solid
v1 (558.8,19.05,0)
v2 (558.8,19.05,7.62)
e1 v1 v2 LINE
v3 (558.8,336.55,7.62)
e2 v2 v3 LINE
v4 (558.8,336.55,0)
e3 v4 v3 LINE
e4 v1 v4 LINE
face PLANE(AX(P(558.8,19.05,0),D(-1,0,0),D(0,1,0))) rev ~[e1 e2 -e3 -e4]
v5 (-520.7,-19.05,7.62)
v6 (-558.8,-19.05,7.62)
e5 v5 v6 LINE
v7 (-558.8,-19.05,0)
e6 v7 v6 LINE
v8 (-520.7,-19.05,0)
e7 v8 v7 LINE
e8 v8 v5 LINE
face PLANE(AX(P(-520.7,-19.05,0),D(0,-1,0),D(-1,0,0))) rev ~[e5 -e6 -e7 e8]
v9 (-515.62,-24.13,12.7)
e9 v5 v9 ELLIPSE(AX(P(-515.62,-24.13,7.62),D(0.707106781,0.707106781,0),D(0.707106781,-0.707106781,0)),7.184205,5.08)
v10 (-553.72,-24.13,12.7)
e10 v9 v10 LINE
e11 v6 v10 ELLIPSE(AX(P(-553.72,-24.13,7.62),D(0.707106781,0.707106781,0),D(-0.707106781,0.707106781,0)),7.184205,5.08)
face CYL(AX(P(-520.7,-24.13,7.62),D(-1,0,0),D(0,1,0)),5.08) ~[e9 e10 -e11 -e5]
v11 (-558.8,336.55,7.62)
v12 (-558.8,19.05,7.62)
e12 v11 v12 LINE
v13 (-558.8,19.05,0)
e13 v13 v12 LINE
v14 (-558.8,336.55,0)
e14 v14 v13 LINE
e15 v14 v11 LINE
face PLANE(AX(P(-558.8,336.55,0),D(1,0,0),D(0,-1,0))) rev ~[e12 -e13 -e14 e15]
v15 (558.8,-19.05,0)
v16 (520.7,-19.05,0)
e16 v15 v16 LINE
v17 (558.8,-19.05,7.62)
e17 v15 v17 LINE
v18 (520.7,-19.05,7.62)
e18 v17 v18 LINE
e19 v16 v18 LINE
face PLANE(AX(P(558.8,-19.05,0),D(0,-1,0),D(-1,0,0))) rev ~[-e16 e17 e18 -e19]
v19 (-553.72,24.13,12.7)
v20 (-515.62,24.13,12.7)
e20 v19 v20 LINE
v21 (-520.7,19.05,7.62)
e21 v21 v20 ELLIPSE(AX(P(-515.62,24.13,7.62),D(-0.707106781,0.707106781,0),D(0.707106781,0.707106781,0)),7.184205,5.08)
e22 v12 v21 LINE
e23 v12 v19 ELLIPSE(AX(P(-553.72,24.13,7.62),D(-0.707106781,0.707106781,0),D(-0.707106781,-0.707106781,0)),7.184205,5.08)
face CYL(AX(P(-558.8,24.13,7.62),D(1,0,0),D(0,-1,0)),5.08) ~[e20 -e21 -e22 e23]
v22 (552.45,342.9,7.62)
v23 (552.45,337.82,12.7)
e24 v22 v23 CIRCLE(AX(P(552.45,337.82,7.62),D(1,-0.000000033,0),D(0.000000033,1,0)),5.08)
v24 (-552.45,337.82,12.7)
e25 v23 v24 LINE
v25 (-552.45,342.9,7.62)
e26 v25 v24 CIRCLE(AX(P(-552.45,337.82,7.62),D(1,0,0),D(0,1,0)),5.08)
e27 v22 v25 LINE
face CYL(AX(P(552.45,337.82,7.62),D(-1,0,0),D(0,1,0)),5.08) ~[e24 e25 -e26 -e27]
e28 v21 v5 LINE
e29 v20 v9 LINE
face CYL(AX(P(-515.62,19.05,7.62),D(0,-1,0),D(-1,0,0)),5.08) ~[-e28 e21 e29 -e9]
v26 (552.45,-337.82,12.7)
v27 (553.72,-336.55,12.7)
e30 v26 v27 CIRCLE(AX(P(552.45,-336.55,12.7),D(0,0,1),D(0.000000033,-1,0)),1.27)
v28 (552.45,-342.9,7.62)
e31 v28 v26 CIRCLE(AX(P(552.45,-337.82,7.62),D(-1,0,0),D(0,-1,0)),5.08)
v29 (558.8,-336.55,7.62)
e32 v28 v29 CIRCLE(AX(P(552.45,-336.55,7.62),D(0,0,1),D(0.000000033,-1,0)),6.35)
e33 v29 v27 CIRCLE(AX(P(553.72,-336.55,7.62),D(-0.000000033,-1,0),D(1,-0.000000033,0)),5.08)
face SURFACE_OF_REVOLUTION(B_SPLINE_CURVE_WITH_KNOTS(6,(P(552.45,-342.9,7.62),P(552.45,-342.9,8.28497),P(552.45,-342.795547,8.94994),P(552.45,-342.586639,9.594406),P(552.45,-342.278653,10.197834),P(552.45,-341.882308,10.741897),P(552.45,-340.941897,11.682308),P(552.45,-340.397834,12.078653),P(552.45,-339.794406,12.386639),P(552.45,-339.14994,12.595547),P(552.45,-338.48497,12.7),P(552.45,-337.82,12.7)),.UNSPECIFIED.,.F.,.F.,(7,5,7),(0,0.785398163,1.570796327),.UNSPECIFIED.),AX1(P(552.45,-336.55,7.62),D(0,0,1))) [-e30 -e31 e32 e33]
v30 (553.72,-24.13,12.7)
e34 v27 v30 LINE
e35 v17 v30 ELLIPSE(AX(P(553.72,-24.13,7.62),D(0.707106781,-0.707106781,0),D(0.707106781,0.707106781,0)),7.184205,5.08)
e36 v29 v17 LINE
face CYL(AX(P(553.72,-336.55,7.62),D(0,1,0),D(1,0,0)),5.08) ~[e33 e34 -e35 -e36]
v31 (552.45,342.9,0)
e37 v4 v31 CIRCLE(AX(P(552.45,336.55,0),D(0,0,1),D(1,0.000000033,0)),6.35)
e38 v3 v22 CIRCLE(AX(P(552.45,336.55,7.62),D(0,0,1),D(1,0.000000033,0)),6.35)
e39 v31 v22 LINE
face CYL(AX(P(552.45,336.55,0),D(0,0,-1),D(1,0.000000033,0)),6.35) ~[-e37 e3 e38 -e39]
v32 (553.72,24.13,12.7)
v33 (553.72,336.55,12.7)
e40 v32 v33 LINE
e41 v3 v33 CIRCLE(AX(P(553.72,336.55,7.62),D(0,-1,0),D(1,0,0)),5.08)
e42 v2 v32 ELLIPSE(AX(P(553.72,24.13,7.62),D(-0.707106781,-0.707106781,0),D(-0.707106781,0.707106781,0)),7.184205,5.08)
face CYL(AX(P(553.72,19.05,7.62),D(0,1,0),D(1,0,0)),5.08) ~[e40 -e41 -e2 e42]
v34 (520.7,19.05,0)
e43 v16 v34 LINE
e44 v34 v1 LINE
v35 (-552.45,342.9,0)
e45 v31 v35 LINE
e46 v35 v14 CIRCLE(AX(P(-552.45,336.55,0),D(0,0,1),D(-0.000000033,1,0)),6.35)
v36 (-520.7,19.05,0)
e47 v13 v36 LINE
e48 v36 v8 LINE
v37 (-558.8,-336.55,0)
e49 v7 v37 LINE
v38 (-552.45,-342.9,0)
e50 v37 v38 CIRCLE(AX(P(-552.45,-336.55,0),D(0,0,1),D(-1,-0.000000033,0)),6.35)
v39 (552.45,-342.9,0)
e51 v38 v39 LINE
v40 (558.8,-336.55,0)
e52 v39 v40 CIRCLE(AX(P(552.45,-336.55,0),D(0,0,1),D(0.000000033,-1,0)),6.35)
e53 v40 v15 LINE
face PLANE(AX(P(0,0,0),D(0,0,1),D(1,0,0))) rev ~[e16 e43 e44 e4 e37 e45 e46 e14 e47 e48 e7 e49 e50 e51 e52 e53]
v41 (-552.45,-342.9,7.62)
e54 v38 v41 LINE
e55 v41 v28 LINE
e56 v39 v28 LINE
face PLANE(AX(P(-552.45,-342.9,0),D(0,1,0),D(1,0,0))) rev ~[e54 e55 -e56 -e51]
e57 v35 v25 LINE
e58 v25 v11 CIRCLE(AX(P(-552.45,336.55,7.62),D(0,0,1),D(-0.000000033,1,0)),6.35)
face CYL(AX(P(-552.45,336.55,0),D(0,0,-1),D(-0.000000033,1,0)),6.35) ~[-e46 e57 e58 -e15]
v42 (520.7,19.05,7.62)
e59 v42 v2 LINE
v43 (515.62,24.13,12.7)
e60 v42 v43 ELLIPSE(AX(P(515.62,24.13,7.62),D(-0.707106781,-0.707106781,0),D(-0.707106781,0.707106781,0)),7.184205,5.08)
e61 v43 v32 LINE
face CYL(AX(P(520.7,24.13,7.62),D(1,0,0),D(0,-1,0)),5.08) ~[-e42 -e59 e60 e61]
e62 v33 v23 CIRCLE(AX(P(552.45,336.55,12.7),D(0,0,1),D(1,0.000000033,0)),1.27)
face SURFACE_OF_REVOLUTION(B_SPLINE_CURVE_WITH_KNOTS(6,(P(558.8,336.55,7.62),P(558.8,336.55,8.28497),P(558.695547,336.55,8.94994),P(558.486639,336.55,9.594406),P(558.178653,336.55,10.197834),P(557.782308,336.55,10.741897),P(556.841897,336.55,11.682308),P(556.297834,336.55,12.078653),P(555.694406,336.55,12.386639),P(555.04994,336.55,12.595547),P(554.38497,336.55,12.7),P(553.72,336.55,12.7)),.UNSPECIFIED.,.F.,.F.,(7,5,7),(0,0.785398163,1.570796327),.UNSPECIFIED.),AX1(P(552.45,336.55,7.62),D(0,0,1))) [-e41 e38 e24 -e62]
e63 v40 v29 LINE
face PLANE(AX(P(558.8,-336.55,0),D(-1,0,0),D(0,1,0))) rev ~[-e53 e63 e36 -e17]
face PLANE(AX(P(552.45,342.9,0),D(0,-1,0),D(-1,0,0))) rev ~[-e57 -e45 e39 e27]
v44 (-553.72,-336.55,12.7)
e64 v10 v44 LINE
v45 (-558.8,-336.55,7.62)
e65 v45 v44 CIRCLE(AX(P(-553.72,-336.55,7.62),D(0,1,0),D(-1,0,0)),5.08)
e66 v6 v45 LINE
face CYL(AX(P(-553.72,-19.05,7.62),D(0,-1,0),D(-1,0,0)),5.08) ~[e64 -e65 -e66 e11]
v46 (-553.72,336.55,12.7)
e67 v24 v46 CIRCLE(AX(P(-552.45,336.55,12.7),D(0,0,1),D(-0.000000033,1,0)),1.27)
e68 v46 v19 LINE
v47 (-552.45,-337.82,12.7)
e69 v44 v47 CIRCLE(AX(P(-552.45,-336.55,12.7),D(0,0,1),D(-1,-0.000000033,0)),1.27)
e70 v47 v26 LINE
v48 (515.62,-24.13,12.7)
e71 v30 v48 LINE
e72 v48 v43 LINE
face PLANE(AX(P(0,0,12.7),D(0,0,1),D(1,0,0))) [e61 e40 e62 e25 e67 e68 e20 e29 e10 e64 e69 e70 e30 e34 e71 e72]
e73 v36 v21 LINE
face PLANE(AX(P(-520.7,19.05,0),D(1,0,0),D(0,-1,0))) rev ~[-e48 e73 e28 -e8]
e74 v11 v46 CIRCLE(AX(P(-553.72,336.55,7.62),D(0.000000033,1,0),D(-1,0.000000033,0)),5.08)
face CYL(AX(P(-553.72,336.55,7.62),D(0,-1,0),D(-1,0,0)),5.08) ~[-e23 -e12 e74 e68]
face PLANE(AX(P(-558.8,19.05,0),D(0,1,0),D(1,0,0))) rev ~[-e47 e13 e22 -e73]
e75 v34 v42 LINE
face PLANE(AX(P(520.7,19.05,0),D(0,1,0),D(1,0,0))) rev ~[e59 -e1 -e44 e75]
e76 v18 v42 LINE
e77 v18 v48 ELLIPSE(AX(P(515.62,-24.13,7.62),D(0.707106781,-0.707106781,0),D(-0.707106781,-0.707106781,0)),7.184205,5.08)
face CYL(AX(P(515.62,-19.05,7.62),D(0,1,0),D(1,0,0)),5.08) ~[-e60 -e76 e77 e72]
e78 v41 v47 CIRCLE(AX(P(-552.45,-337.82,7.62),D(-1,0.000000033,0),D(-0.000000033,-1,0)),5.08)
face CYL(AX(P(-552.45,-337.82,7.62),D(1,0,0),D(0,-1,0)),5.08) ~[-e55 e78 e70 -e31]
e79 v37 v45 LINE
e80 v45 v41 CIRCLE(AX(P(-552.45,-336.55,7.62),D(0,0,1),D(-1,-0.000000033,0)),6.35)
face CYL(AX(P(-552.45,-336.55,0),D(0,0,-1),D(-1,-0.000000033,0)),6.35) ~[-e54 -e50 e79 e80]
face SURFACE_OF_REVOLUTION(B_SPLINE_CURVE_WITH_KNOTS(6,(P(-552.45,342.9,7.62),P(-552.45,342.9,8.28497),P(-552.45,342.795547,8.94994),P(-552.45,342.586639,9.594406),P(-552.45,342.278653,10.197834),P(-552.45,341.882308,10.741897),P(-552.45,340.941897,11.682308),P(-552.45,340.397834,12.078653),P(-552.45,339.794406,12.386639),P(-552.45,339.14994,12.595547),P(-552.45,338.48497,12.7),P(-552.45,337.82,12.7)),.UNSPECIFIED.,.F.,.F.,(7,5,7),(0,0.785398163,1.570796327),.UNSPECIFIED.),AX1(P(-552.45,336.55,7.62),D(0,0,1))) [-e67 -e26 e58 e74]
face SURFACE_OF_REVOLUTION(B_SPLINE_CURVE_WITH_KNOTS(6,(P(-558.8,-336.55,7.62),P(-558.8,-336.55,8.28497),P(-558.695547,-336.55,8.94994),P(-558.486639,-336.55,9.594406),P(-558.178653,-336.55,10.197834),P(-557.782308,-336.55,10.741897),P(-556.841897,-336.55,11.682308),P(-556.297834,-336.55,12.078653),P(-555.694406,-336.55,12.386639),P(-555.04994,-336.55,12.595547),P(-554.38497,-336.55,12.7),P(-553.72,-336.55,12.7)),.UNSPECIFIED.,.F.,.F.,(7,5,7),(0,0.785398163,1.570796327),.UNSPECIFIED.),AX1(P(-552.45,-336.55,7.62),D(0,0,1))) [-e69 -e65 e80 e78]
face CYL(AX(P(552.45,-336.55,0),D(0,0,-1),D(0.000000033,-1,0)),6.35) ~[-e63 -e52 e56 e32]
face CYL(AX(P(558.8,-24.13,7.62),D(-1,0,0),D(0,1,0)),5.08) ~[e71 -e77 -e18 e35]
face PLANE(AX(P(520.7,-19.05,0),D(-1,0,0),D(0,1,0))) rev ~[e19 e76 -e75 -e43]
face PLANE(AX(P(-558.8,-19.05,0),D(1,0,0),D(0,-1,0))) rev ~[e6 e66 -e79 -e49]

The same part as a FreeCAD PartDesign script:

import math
import FreeCAD as App
import Part
import Sketcher

V = App.Vector
Q = App.Units.Quantity


def edges_at(feature, points):
    """Names of the edges that pass closest to the given points."""
    edges = feature.Shape.Edges
    near = lambda p: min(range(len(edges)), key=lambda i: edges[i].distToShape(Part.Vertex(*p))[0])
    return sorted({f"Edge{near(p) + 1}" for p in points})

doc = App.newDocument("Part")
body = doc.addObject("PartDesign::Body", "Body")

# Sketch on XY plane
sketch1 = body.newObject("Sketcher::SketchObject", "Sketch")
sketch1.AttachmentSupport = (doc.getObject("XY_Plane"), [""])
sketch1.MapMode = "FlatFace"
sketch1.addGeometry([
    Part.LineSegment(V(-552, -343, 0), V(552, -343, 0)),  # 0
    Part.ArcOfCircle(Part.Circle(V(552, -337, 0), V(0, 0, 1), 6), math.radians(-90), math.radians(0)),  # 1
    Part.LineSegment(V(559, -337, 0), V(559, -19, 0)),  # 2
    Part.LineSegment(V(559, -19, 0), V(521, -19, 0)),  # 3
    Part.LineSegment(V(521, -19, 0), V(521, 19, 0)),  # 4
    Part.LineSegment(V(521, 19, 0), V(559, 19, 0)),  # 5
    Part.LineSegment(V(559, 19, 0), V(559, 337, 0)),  # 6
    Part.ArcOfCircle(Part.Circle(V(552, 337, 0), V(0, 0, 1), 6), math.radians(0), math.radians(90)),  # 7
    Part.LineSegment(V(552, 343, 0), V(-552, 343, 0)),  # 8
    Part.ArcOfCircle(Part.Circle(V(-552, 337, 0), V(0, 0, 1), 6), math.radians(90), math.radians(180)),  # 9
    Part.LineSegment(V(-559, 337, 0), V(-559, 19, 0)),  # 10
    Part.LineSegment(V(-559, 19, 0), V(-521, 19, 0)),  # 11
    Part.LineSegment(V(-521, 19, 0), V(-521, -19, 0)),  # 12
    Part.LineSegment(V(-521, -19, 0), V(-559, -19, 0)),  # 13
    Part.LineSegment(V(-559, -19, 0), V(-559, -337, 0)),  # 14
    Part.ArcOfCircle(Part.Circle(V(-552, -337, 0), V(0, 0, 1), 6), math.radians(-180), math.radians(-90)),  # 15
], False)
sketch1.addConstraint([
    Sketcher.Constraint("Tangent", 0, 2, 1, 1),
    Sketcher.Constraint("Tangent", 1, 2, 2, 1),
    Sketcher.Constraint("Coincident", 2, 2, 3, 1),
    Sketcher.Constraint("Coincident", 3, 2, 4, 1),
    Sketcher.Constraint("Coincident", 4, 2, 5, 1),
    Sketcher.Constraint("Coincident", 5, 2, 6, 1),
    Sketcher.Constraint("Tangent", 6, 2, 7, 1),
    Sketcher.Constraint("Tangent", 7, 2, 8, 1),
    Sketcher.Constraint("Tangent", 8, 2, 9, 1),
    Sketcher.Constraint("Tangent", 9, 2, 10, 1),
    Sketcher.Constraint("Coincident", 10, 2, 11, 1),
    Sketcher.Constraint("Coincident", 11, 2, 12, 1),
    Sketcher.Constraint("Coincident", 12, 2, 13, 1),
    Sketcher.Constraint("Coincident", 13, 2, 14, 1),
    Sketcher.Constraint("Tangent", 14, 2, 15, 1),
    Sketcher.Constraint("Tangent", 15, 2, 0, 1),
    Sketcher.Constraint("Horizontal", 0),
    Sketcher.Constraint("Vertical", 2),
    Sketcher.Constraint("Horizontal", 3),
    Sketcher.Constraint("Vertical", 4),
    Sketcher.Constraint("Horizontal", 5),
    Sketcher.Constraint("Vertical", 6),
    Sketcher.Constraint("Horizontal", 8),
    Sketcher.Constraint("Vertical", 10),
    Sketcher.Constraint("Horizontal", 11),
    Sketcher.Constraint("Vertical", 12),
    Sketcher.Constraint("Horizontal", 13),
    Sketcher.Constraint("Vertical", 14),
    Sketcher.Constraint("Equal", 1, 7),
    Sketcher.Constraint("Equal", 7, 9),
    Sketcher.Constraint("Equal", 9, 15),
    Sketcher.Constraint("Symmetric", 1, 3, 9, 3, -1, 1),
    Sketcher.Constraint("Symmetric", 3, 2, 11, 2, -1, 1),
    Sketcher.Constraint("Symmetric", 5, 2, 13, 2, -1, 1),
    Sketcher.Constraint("Symmetric", 5, 2, 10, 2, -2),
    Sketcher.Constraint("Equal", 13, 4),
    Sketcher.Constraint("Radius", 1, Q("0.25 in")),
    Sketcher.Constraint("DistanceX", 0, 1, 0, 2, Q("43.5 in")),
    Sketcher.Constraint("DistanceX", 3, 2, 3, 1, Q("1.5 in")),
    Sketcher.Constraint("DistanceY", 2, 1, 2, 2, Q("12.5 in")),
])
pad1 = body.newObject("PartDesign::Pad", "Pad")
pad1.Profile = sketch1
pad1.Length = Q("0.5 in")
doc.recompute()

fillet = body.newObject("PartDesign::Fillet", "Fillet")
fillet.Base = (pad1, edges_at(pad1, [
    (-556.94, 341.04, 12.7),
    (-558.8, 177.8, 12.7),
    (-539.75, 19.05, 12.7),
    (-520.7, 0, 12.7),
    (-539.75, -19.05, 12.7),
    (-558.8, -177.8, 12.7),
    (-556.94, -341.04, 12.7),
    (0, -342.9, 12.7),
    (556.94, -341.04, 12.7),
    (558.8, -177.8, 12.7),
    (539.75, -19.05, 12.7),
    (520.7, 0, 12.7),
    (539.75, 19.05, 12.7),
    (558.8, 177.8, 12.7),
    (556.94, 341.04, 12.7),
    (0, 342.9, 12.7),
]))
fillet.Radius = Q("0.2 in")

doc.recompute()
